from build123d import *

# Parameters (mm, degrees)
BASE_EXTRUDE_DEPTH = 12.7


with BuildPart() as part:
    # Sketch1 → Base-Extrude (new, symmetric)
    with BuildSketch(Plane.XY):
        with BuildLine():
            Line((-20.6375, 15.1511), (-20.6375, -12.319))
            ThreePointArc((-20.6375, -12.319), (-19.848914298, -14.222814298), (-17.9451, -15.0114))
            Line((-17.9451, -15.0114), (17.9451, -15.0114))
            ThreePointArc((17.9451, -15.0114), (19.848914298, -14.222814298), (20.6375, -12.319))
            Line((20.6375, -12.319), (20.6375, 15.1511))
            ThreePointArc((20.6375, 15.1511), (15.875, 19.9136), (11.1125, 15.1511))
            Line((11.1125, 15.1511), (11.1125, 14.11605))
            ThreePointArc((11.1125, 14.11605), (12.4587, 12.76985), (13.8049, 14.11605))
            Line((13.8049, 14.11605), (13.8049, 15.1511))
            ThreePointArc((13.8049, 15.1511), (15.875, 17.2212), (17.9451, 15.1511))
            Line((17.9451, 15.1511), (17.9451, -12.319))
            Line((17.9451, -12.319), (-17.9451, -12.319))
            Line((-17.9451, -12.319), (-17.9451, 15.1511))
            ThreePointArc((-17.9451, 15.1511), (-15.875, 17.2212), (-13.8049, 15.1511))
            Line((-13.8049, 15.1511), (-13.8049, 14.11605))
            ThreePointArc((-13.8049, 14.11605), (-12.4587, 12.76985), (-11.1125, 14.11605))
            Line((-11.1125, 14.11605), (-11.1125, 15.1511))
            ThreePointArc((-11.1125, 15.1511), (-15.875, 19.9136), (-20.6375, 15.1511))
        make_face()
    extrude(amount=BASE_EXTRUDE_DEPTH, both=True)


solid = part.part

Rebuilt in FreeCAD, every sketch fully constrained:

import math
import FreeCAD as App
import Part
import Sketcher
Q = App.Units.Quantity

doc = App.newDocument("Part")
body = doc.addObject("PartDesign::Body", "Body")

sketch1 = doc.addObject("Sketcher::SketchObject", "Sketch")
body.addObject(sketch1)
sketch1.AttachmentSupport = (doc.XY_Plane, [""])
sketch1.MapMode = "FlatFace"
sketch1.addGeometry(Part.LineSegment(App.Vector(-20.6375, 15.1511, 0), App.Vector(-20.6375, -12.319, 0)), False)
sketch1.addGeometry(Part.ArcOfCircle(Part.Circle(App.Vector(-17.9451, -12.319, 0), App.Vector(0, 0, 1), 2.6924), math.radians(180), math.radians(270)), False)
sketch1.addGeometry(Part.LineSegment(App.Vector(-17.9451, -15.0114, 0), App.Vector(17.9451, -15.0114, 0)), False)
sketch1.addGeometry(Part.ArcOfCircle(Part.Circle(App.Vector(17.9451, -12.319, 0), App.Vector(0, 0, 1), 2.6924), math.radians(-90), math.radians(0)), False)
sketch1.addGeometry(Part.LineSegment(App.Vector(20.6375, -12.319, 0), App.Vector(20.6375, 15.1511, 0)), False)
sketch1.addGeometry(Part.ArcOfCircle(Part.Circle(App.Vector(15.875, 15.1511, 0), App.Vector(0, 0, 1), 4.7625), math.radians(0), math.radians(180)), False)
sketch1.addGeometry(Part.LineSegment(App.Vector(11.1125, 15.1511, 0), App.Vector(11.1125, 14.11605, 0)), False)
sketch1.addGeometry(Part.ArcOfCircle(Part.Circle(App.Vector(12.4587, 14.11605, 0), App.Vector(0, 0, 1), 1.3462), math.radians(180), math.radians(360)), False)
sketch1.addGeometry(Part.LineSegment(App.Vector(13.8049, 14.11605, 0), App.Vector(13.8049, 15.1511, 0)), False)
sketch1.addGeometry(Part.ArcOfCircle(Part.Circle(App.Vector(15.875, 15.1511, 0), App.Vector(0, 0, 1), 2.0701), math.radians(0), math.radians(180)), False)
sketch1.addGeometry(Part.LineSegment(App.Vector(17.9451, 15.1511, 0), App.Vector(17.9451, -12.319, 0)), False)
sketch1.addGeometry(Part.LineSegment(App.Vector(17.9451, -12.319, 0), App.Vector(-17.9451, -12.319, 0)), False)
sketch1.addGeometry(Part.LineSegment(App.Vector(-17.9451, -12.319, 0), App.Vector(-17.9451, 15.1511, 0)), False)
sketch1.addGeometry(Part.ArcOfCircle(Part.Circle(App.Vector(-15.875, 15.1511, 0), App.Vector(0, 0, 1), 2.0701), math.radians(0), math.radians(180)), False)
sketch1.addGeometry(Part.LineSegment(App.Vector(-13.8049, 15.1511, 0), App.Vector(-13.8049, 14.11605, 0)), False)
sketch1.addGeometry(Part.ArcOfCircle(Part.Circle(App.Vector(-12.4587, 14.11605, 0), App.Vector(0, 0, 1), 1.3462), math.radians(180), math.radians(360)), False)
sketch1.addGeometry(Part.LineSegment(App.Vector(-11.1125, 14.11605, 0), App.Vector(-11.1125, 15.1511, 0)), False)
sketch1.addGeometry(Part.ArcOfCircle(Part.Circle(App.Vector(-15.875, 15.1511, 0), App.Vector(0, 0, 1), 4.7625), math.radians(0), math.radians(180)), False)
sketch1.addConstraint(Sketcher.Constraint("Tangent", 0, 2, 1, 1))
sketch1.addConstraint(Sketcher.Constraint("Tangent", 1, 2, 2, 1))
sketch1.addConstraint(Sketcher.Constraint("Tangent", 2, 2, 3, 1))
sketch1.addConstraint(Sketcher.Constraint("Tangent", 3, 2, 4, 1))
sketch1.addConstraint(Sketcher.Constraint("Tangent", 4, 2, 5, 1))
sketch1.addConstraint(Sketcher.Constraint("Tangent", 5, 2, 6, 1))
sketch1.addConstraint(Sketcher.Constraint("Tangent", 6, 2, 7, 1))
sketch1.addConstraint(Sketcher.Constraint("Tangent", 7, 2, 8, 1))
sketch1.addConstraint(Sketcher.Constraint("Tangent", 8, 2, 9, 2))
sketch1.addConstraint(Sketcher.Constraint("Tangent", 9, 1, 10, 1))
sketch1.addConstraint(Sketcher.Constraint("Coincident", 10, 2, 11, 1))
sketch1.addConstraint(Sketcher.Constraint("Coincident", 11, 2, 12, 1))
sketch1.addConstraint(Sketcher.Constraint("Tangent", 12, 2, 13, 2))
sketch1.addConstraint(Sketcher.Constraint("Tangent", 13, 1, 14, 1))
sketch1.addConstraint(Sketcher.Constraint("Tangent", 14, 2, 15, 1))
sketch1.addConstraint(Sketcher.Constraint("Tangent", 15, 2, 16, 1))
sketch1.addConstraint(Sketcher.Constraint("Tangent", 16, 2, 17, 1))
sketch1.addConstraint(Sketcher.Constraint("Tangent", 17, 2, 0, 1))
sketch1.addConstraint(Sketcher.Constraint("Vertical", 0))
sketch1.addConstraint(Sketcher.Constraint("Horizontal", 2))
sketch1.addConstraint(Sketcher.Constraint("Vertical", 4))
sketch1.addConstraint(Sketcher.Constraint("Vertical", 6))
sketch1.addConstraint(Sketcher.Constraint("Vertical", 8))
sketch1.addConstraint(Sketcher.Constraint("Vertical", 10))
sketch1.addConstraint(Sketcher.Constraint("Horizontal", 11))
sketch1.addConstraint(Sketcher.Constraint("Vertical", 12))
sketch1.addConstraint(Sketcher.Constraint("Vertical", 14))
sketch1.addConstraint(Sketcher.Constraint("Vertical", 16))
sketch1.addConstraint(Sketcher.Constraint("Coincident", 9, 3, 5, 3))
sketch1.addConstraint(Sketcher.Constraint("Coincident", 17, 3, 13, 3))
sketch1.addConstraint(Sketcher.Constraint("Coincident", 10, 2, 3, 3))
sketch1.addConstraint(Sketcher.Constraint("Coincident", 11, 2, 1, 3))
sketch1.addConstraint(Sketcher.Constraint("Equal", 9, 13))
sketch1.addConstraint(Sketcher.Constraint("Symmetric", 5, 3, 13, 3, -2))
sketch1.addConstraint(Sketcher.Constraint("Horizontal", 7, 3, 15, 3))
sketch1.addConstraint(Sketcher.Constraint("Radius", 1, Q("0.106 in")))
sketch1.addConstraint(Sketcher.Constraint("Radius", 5, Q("0.1875 in")))
sketch1.addConstraint(Sketcher.Constraint("DistanceX", 2, 1, 2, 2, Q("1.413 in")))
sketch1.addConstraint(Sketcher.Constraint("DistanceY", 0, 2, 0, 1, Q("1.0815 in")))
sketch1.addConstraint(Sketcher.Constraint("DistanceY", 1, 3, -1, 1, Q("0.485 in")))
sketch1.addConstraint(Sketcher.Constraint("DistanceY", 6, 2, 6, 1, Q("1.03505 mm")))
pad1 = doc.addObject("PartDesign::Pad", "Pad")
body.addObject(pad1)
pad1.Profile = sketch1
pad1.Length = Q("1 in")
pad1.Midplane = True

doc.recompute()
